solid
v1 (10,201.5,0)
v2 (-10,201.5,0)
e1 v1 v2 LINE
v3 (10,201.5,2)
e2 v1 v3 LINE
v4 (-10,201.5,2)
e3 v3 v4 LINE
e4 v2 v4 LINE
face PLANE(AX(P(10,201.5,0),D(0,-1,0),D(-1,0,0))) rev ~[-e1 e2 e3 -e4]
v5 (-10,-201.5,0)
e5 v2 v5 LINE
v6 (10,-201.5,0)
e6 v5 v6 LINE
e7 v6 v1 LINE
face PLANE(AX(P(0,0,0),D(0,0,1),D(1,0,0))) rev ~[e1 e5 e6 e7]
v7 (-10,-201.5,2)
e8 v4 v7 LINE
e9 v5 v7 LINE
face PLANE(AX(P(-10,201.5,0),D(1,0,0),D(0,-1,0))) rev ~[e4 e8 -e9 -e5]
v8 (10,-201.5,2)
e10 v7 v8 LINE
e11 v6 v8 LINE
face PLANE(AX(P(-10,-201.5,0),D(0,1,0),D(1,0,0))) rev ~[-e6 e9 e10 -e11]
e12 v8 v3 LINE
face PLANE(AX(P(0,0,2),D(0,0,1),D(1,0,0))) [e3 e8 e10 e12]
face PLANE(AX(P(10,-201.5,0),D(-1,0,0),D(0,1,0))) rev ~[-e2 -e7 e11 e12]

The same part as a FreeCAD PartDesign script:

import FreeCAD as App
import Part
import Sketcher

doc = App.newDocument("Part")
body = doc.addObject("PartDesign::Body", "Body")

# Sketch on XY plane
sketch1 = body.newObject("Sketcher::SketchObject", "Sketch")
sketch1.AttachmentSupport = (doc.getObject("XY_Plane"), [""])
sketch1.MapMode = "FlatFace"
sketch1.addGeometry([
    Part.LineSegment(App.Vector(-10, 201.5, 0), App.Vector(-10, -201.5, 0)),
    Part.LineSegment(App.Vector(-10, -201.5, 0), App.Vector(10, -201.5, 0)),
    Part.LineSegment(App.Vector(10, -201.5, 0), App.Vector(10, 201.5, 0)),
    Part.LineSegment(App.Vector(10, 201.5, 0), App.Vector(-10, 201.5, 0)),
], False)
sketch1.addConstraint([
    Sketcher.Constraint("Coincident", 0, 2, 1, 1),
    Sketcher.Constraint("Coincident", 1, 2, 2, 1),
    Sketcher.Constraint("Coincident", 2, 2, 3, 1),
    Sketcher.Constraint("Coincident", 3, 2, 0, 1),
    Sketcher.Constraint("Vertical", 0),
    Sketcher.Constraint("Horizontal", 1),
    Sketcher.Constraint("Vertical", 2),
    Sketcher.Constraint("Horizontal", 3),
    Sketcher.Constraint("Symmetric", 0, 2, 2, 2, -1, 1),
    Sketcher.Constraint("DistanceX", 1, 1, 1, 2, 20.0),
    Sketcher.Constraint("DistanceY", 0, 2, 0, 1, 403.0),
])
pad1 = body.newObject("PartDesign::Pad", "Pad")
pad1.Profile = sketch1
pad1.Length = 2

doc.recompute()
